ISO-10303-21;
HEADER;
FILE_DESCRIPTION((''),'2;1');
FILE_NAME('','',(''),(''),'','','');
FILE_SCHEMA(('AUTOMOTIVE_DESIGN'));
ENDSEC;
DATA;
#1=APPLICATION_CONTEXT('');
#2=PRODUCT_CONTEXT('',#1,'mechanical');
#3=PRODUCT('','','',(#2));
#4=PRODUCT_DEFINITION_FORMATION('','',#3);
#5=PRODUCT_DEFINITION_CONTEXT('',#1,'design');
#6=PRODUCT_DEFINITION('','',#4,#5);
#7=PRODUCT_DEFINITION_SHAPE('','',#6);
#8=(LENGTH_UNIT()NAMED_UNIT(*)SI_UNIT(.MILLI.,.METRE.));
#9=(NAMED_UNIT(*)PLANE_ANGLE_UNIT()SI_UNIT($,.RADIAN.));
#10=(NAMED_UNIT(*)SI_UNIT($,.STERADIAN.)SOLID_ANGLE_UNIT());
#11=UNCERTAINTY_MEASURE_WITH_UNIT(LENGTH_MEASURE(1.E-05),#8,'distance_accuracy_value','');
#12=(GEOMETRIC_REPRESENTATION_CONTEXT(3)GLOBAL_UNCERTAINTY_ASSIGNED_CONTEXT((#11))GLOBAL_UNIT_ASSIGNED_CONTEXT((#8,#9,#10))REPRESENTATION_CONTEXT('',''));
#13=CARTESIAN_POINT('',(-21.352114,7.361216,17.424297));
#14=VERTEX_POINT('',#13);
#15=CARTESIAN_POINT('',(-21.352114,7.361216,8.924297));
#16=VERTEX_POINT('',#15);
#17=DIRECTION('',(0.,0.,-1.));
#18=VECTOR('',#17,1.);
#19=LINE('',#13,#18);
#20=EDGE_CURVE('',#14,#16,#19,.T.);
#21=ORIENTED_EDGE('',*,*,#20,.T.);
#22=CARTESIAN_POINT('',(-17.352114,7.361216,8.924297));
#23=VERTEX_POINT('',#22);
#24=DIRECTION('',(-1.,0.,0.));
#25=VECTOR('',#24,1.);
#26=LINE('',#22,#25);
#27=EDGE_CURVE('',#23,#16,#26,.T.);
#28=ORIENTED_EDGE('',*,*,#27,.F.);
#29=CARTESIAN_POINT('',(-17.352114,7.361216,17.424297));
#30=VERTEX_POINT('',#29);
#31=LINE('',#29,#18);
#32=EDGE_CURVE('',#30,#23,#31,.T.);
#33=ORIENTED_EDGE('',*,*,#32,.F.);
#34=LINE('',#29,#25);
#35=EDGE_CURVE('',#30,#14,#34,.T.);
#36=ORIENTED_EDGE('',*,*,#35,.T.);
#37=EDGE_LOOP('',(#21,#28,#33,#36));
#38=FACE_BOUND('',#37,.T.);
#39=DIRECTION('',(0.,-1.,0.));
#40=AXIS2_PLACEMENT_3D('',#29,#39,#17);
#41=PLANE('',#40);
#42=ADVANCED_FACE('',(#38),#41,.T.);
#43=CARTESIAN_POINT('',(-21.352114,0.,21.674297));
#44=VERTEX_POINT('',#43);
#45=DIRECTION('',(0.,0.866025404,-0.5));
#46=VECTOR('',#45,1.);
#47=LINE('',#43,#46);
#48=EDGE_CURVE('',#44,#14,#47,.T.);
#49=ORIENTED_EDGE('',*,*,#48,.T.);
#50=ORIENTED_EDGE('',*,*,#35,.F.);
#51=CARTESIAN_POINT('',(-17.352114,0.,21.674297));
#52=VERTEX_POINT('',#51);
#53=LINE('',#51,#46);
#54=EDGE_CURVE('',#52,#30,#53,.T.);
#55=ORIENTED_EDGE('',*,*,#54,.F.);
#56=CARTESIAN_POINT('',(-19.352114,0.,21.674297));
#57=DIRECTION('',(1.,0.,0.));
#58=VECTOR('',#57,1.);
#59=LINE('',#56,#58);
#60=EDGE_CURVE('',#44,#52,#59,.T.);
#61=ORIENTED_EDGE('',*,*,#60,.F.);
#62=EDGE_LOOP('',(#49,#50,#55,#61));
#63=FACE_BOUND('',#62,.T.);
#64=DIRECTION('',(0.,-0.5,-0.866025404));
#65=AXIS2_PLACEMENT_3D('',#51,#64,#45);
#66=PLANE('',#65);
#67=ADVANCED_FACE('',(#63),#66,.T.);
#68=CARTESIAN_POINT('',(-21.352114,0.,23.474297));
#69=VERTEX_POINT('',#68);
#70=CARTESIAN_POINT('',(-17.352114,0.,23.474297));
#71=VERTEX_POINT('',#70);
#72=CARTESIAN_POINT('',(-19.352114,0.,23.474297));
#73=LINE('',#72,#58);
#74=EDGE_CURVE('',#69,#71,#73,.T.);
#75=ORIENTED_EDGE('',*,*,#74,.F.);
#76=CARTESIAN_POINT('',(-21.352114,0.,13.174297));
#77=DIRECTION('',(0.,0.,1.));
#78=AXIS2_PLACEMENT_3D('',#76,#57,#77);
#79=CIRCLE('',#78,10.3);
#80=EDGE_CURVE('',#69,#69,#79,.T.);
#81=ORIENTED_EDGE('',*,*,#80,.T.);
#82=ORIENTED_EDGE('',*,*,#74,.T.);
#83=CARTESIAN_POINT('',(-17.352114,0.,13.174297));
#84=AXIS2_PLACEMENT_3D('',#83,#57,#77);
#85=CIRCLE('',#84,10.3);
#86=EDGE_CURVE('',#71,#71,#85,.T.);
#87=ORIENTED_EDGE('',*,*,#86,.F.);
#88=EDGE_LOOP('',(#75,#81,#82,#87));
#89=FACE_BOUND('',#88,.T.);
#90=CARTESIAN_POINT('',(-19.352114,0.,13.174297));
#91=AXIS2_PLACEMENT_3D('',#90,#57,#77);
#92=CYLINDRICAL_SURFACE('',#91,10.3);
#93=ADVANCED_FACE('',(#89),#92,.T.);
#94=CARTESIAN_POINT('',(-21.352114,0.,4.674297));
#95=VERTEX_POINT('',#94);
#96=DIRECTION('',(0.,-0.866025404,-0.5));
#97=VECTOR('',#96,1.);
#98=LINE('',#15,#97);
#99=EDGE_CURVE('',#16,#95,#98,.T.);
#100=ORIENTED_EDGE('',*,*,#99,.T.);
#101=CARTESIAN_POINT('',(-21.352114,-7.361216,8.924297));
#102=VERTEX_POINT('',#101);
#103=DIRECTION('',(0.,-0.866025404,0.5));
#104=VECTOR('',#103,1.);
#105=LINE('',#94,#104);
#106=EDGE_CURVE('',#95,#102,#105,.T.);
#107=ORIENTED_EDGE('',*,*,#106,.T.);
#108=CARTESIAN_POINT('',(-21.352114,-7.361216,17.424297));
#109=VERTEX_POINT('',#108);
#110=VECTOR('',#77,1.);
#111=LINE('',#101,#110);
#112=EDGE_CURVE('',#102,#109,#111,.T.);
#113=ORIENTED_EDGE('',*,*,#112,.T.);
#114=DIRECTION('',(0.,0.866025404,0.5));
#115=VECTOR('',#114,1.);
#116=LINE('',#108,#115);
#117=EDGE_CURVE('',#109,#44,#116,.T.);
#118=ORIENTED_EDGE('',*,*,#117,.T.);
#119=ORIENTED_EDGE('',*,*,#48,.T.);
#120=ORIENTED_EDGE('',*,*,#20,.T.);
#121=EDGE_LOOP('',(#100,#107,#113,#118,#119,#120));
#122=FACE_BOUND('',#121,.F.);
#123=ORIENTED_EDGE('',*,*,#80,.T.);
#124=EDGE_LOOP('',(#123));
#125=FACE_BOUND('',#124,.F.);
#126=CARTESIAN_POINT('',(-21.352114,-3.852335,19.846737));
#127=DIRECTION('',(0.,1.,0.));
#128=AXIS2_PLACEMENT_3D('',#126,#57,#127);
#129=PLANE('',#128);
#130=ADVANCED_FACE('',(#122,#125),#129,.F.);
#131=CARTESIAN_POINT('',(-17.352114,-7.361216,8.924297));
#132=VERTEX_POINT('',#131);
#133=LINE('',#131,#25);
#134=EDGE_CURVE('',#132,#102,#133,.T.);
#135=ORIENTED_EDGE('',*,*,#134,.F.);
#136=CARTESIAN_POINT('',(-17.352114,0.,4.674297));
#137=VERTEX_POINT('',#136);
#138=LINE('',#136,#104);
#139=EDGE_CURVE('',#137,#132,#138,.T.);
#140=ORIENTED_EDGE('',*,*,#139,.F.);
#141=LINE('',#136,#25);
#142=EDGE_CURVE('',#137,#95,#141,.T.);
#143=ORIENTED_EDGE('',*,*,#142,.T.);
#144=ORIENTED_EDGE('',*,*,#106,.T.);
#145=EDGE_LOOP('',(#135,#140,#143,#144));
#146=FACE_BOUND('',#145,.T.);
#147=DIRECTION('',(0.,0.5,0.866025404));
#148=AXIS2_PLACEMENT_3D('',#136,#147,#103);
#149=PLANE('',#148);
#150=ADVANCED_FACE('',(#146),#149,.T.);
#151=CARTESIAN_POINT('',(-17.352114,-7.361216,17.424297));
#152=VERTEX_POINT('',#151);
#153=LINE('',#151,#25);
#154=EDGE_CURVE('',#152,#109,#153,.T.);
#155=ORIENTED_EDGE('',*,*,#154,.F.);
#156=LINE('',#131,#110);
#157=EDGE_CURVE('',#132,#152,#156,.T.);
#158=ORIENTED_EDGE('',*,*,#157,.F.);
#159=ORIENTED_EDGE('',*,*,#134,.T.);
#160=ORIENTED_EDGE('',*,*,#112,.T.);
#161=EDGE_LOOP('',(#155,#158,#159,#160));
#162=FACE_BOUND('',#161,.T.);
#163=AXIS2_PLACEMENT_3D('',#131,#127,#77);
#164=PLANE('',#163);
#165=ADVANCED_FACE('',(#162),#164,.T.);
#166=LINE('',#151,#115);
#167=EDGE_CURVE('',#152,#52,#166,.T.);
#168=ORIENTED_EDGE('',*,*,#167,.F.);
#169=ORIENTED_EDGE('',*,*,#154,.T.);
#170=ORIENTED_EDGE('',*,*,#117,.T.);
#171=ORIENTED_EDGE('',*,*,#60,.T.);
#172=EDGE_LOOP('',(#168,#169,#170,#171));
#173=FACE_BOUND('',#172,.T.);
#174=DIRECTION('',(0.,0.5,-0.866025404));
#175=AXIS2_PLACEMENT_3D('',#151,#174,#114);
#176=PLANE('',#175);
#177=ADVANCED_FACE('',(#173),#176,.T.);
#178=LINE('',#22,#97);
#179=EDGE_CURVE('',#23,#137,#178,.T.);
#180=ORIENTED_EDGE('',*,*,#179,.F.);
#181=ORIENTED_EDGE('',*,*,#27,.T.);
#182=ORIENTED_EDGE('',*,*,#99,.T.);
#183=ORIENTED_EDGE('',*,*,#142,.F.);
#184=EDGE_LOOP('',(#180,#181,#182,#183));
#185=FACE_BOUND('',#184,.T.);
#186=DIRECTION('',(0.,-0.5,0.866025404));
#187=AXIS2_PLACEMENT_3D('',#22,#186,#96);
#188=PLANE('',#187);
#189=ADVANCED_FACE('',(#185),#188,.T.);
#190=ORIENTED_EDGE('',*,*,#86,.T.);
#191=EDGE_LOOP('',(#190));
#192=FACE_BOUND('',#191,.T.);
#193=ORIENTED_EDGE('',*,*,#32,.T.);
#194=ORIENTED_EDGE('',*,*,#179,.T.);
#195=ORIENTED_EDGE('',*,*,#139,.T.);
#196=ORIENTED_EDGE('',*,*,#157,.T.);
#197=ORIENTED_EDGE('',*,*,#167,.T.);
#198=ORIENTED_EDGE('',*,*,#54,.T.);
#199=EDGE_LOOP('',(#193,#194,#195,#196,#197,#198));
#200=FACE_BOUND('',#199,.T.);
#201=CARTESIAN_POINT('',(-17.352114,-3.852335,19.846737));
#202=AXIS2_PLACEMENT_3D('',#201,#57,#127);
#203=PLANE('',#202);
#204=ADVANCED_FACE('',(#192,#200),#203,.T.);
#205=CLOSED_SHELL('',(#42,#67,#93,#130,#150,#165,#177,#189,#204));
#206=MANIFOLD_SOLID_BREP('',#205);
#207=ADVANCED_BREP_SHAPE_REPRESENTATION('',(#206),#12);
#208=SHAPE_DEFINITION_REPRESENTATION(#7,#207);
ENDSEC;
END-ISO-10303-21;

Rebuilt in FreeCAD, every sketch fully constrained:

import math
import FreeCAD as App
import Part
import Sketcher
Q = App.Units.Quantity


def add_polygon(sketch, points):
    """Adds a closed chain of lines whose ends are joined by coincident constraints."""
    first, n = sketch.GeometryCount, len(points)
    for a, b in zip(points, points[1:] + points[:1]):
        sketch.addGeometry(Part.LineSegment(App.Vector(*a, 0), App.Vector(*b, 0)), False)
    for i in range(n):
        sketch.addConstraint(Sketcher.Constraint("Coincident", first + i, 2, first + (i + 1) % n, 1))

doc = App.newDocument("Part")
body = doc.addObject("PartDesign::Body", "Body")

sketch1 = body.newObject("Sketcher::SketchObject", "Sketch")
sketch1.AttachmentSupport = (doc.getObject("XZ_Plane"), [""])
sketch1.MapMode = "FlatFace"
add_polygon(sketch1, [(-21.4, 23.5), (-21.4, 21.7), (-17.4, 21.7), (-17.4, 23.5)])
sketch1.addGeometry(Part.LineSegment(App.Vector(-21.4, 13.2, 0), App.Vector(-17.4, 13.2, 0)), True)
sketch1.addConstraint([
    Sketcher.Constraint("Vertical", 0),
    Sketcher.Constraint("Horizontal", 1),
    Sketcher.Constraint("Vertical", 2),
    Sketcher.Constraint("Horizontal", 3),
    Sketcher.Constraint("Horizontal", 4),
    Sketcher.Constraint("Vertical", 3, 2, 4, 1),
    Sketcher.Constraint("Vertical", 2, 2, 4, 2),
    Sketcher.Constraint("DistanceX", 1, 1, 1, 2, Q("4 mm")),
    Sketcher.Constraint("DistanceY", 0, 2, 0, 1, Q("1.8 mm")),
    Sketcher.Constraint("DistanceY", 4, 1, 0, 2, Q("8.5 mm")),
    Sketcher.Constraint("DistanceX", 0, 2, -1, 1, Q("21.352114 mm")),
    Sketcher.Constraint("DistanceY", -1, 1, 0, 2, Q("21.674297 mm")),
])
revolution = body.newObject("PartDesign::Revolution", "Revolution")
revolution.Profile = sketch1
revolution.ReferenceAxis = (sketch1, ["Axis0"])
revolution.Angle = 360

sketch2 = body.newObject("Sketcher::SketchObject", "Sketch001")
sketch2.AttachmentSupport = (doc.getObject("YZ_Plane"), [""])
sketch2.MapMode = "FlatFace"
sketch2.AttachmentOffset = App.Placement(App.Vector(0, 0, -17.352114), App.Rotation())
sketch2.addGeometry([
    Part.LineSegment(App.Vector(-7.4, 17.4, 0), App.Vector(0, 21.7, 0)),
    Part.ArcOfCircle(Part.Circle(App.Vector(0, 13.2, 0), App.Vector(0, 0, 1), 8.5), math.radians(90), math.radians(150)),
    Part.LineSegment(App.Vector(-7.4, 8.9, 0), App.Vector(-7.4, 17.4, 0)),
    Part.ArcOfCircle(Part.Circle(App.Vector(0, 13.2, 0), App.Vector(0, 0, 1), 8.5), math.radians(150), math.radians(210)),
    Part.LineSegment(App.Vector(0, 4.7, 0), App.Vector(-7.4, 8.9, 0)),
    Part.ArcOfCircle(Part.Circle(App.Vector(0, 13.2, 0), App.Vector(0, 0, 1), 8.5), math.radians(-150), math.radians(-90)),
    Part.ArcOfCircle(Part.Circle(App.Vector(0, 13.2, 0), App.Vector(0, 0, 1), 8.5), math.radians(-90), math.radians(-30)),
    Part.LineSegment(App.Vector(7.4, 8.9, 0), App.Vector(0, 4.7, 0)),
    Part.ArcOfCircle(Part.Circle(App.Vector(0, 13.2, 0), App.Vector(0, 0, 1), 8.5), math.radians(0), math.radians(30)),
    Part.LineSegment(App.Vector(7.4, 17.4, 0), App.Vector(7.4, 8.9, 0)),
    Part.ArcOfCircle(Part.Circle(App.Vector(0, 13.2, 0), App.Vector(0, 0, 1), 8.5), math.radians(-30), math.radians(0)),
    Part.ArcOfCircle(Part.Circle(App.Vector(0, 13.2, 0), App.Vector(0, 0, 1), 8.5), math.radians(30), math.radians(90)),
    Part.LineSegment(App.Vector(0, 21.7, 0), App.Vector(7.4, 17.4, 0)),
], False)
sketch2.addConstraint([
    Sketcher.Constraint("Coincident", 0, 1, 1, 2),
    Sketcher.Constraint("Coincident", 1, 1, 0, 2),
    Sketcher.Constraint("Coincident", 2, 1, 3, 2),
    Sketcher.Constraint("Coincident", 3, 1, 2, 2),
    Sketcher.Constraint("Coincident", 4, 1, 5, 2),
    Sketcher.Constraint("Coincident", 5, 1, 4, 2),
    Sketcher.Constraint("Coincident", 6, 1, 7, 2),
    Sketcher.Constraint("Coincident", 7, 1, 6, 2),
    Sketcher.Constraint("Coincident", 8, 2, 9, 1),
    Sketcher.Constraint("Coincident", 9, 2, 10, 1),
    Sketcher.Constraint("Tangent", 10, 2, 8, 1),
    Sketcher.Constraint("Coincident", 11, 1, 12, 2),
    Sketcher.Constraint("Coincident", 12, 1, 11, 2),
    Sketcher.Constraint("Vertical", 2),
    Sketcher.Constraint("Vertical", 9),
    Sketcher.Constraint("Coincident", 3, 3, 1, 3),
    Sketcher.Constraint("Coincident", 5, 3, 1, 3),
    Sketcher.Constraint("Coincident", 6, 3, 1, 3),
    Sketcher.Constraint("Coincident", 8, 3, 1, 3),
    Sketcher.Constraint("Coincident", 11, 3, 1, 3),
    Sketcher.Constraint("Coincident", 3, 1, 0, 1),
    Sketcher.Constraint("Coincident", 5, 1, 2, 1),
    Sketcher.Constraint("Coincident", 6, 1, 4, 1),
    Sketcher.Constraint("Coincident", 9, 2, 7, 1),
    Sketcher.Constraint("Coincident", 11, 1, 8, 2),
    Sketcher.Constraint("Coincident", 12, 1, 1, 1),
    Sketcher.Constraint("Symmetric", 2, 1, 7, 1, -2),
    Sketcher.Constraint("PointOnObject", 1, 1, -2),
    Sketcher.Constraint("PointOnObject", 4, 1, -2),
    Sketcher.Constraint("Horizontal", 11, 3, 10, 2),
    Sketcher.Constraint("Radius", 1, Q("8.5 mm")),
    Sketcher.Constraint("Angle", 0, Q("30 deg")),
    Sketcher.Constraint("DistanceY", -1, 1, 1, 3, Q("13.174297 mm")),
])
pad1 = body.newObject("PartDesign::Pad", "Pad")
pad1.Profile = sketch2
pad1.Length = 4
pad1.Reversed = True

doc.recompute()
